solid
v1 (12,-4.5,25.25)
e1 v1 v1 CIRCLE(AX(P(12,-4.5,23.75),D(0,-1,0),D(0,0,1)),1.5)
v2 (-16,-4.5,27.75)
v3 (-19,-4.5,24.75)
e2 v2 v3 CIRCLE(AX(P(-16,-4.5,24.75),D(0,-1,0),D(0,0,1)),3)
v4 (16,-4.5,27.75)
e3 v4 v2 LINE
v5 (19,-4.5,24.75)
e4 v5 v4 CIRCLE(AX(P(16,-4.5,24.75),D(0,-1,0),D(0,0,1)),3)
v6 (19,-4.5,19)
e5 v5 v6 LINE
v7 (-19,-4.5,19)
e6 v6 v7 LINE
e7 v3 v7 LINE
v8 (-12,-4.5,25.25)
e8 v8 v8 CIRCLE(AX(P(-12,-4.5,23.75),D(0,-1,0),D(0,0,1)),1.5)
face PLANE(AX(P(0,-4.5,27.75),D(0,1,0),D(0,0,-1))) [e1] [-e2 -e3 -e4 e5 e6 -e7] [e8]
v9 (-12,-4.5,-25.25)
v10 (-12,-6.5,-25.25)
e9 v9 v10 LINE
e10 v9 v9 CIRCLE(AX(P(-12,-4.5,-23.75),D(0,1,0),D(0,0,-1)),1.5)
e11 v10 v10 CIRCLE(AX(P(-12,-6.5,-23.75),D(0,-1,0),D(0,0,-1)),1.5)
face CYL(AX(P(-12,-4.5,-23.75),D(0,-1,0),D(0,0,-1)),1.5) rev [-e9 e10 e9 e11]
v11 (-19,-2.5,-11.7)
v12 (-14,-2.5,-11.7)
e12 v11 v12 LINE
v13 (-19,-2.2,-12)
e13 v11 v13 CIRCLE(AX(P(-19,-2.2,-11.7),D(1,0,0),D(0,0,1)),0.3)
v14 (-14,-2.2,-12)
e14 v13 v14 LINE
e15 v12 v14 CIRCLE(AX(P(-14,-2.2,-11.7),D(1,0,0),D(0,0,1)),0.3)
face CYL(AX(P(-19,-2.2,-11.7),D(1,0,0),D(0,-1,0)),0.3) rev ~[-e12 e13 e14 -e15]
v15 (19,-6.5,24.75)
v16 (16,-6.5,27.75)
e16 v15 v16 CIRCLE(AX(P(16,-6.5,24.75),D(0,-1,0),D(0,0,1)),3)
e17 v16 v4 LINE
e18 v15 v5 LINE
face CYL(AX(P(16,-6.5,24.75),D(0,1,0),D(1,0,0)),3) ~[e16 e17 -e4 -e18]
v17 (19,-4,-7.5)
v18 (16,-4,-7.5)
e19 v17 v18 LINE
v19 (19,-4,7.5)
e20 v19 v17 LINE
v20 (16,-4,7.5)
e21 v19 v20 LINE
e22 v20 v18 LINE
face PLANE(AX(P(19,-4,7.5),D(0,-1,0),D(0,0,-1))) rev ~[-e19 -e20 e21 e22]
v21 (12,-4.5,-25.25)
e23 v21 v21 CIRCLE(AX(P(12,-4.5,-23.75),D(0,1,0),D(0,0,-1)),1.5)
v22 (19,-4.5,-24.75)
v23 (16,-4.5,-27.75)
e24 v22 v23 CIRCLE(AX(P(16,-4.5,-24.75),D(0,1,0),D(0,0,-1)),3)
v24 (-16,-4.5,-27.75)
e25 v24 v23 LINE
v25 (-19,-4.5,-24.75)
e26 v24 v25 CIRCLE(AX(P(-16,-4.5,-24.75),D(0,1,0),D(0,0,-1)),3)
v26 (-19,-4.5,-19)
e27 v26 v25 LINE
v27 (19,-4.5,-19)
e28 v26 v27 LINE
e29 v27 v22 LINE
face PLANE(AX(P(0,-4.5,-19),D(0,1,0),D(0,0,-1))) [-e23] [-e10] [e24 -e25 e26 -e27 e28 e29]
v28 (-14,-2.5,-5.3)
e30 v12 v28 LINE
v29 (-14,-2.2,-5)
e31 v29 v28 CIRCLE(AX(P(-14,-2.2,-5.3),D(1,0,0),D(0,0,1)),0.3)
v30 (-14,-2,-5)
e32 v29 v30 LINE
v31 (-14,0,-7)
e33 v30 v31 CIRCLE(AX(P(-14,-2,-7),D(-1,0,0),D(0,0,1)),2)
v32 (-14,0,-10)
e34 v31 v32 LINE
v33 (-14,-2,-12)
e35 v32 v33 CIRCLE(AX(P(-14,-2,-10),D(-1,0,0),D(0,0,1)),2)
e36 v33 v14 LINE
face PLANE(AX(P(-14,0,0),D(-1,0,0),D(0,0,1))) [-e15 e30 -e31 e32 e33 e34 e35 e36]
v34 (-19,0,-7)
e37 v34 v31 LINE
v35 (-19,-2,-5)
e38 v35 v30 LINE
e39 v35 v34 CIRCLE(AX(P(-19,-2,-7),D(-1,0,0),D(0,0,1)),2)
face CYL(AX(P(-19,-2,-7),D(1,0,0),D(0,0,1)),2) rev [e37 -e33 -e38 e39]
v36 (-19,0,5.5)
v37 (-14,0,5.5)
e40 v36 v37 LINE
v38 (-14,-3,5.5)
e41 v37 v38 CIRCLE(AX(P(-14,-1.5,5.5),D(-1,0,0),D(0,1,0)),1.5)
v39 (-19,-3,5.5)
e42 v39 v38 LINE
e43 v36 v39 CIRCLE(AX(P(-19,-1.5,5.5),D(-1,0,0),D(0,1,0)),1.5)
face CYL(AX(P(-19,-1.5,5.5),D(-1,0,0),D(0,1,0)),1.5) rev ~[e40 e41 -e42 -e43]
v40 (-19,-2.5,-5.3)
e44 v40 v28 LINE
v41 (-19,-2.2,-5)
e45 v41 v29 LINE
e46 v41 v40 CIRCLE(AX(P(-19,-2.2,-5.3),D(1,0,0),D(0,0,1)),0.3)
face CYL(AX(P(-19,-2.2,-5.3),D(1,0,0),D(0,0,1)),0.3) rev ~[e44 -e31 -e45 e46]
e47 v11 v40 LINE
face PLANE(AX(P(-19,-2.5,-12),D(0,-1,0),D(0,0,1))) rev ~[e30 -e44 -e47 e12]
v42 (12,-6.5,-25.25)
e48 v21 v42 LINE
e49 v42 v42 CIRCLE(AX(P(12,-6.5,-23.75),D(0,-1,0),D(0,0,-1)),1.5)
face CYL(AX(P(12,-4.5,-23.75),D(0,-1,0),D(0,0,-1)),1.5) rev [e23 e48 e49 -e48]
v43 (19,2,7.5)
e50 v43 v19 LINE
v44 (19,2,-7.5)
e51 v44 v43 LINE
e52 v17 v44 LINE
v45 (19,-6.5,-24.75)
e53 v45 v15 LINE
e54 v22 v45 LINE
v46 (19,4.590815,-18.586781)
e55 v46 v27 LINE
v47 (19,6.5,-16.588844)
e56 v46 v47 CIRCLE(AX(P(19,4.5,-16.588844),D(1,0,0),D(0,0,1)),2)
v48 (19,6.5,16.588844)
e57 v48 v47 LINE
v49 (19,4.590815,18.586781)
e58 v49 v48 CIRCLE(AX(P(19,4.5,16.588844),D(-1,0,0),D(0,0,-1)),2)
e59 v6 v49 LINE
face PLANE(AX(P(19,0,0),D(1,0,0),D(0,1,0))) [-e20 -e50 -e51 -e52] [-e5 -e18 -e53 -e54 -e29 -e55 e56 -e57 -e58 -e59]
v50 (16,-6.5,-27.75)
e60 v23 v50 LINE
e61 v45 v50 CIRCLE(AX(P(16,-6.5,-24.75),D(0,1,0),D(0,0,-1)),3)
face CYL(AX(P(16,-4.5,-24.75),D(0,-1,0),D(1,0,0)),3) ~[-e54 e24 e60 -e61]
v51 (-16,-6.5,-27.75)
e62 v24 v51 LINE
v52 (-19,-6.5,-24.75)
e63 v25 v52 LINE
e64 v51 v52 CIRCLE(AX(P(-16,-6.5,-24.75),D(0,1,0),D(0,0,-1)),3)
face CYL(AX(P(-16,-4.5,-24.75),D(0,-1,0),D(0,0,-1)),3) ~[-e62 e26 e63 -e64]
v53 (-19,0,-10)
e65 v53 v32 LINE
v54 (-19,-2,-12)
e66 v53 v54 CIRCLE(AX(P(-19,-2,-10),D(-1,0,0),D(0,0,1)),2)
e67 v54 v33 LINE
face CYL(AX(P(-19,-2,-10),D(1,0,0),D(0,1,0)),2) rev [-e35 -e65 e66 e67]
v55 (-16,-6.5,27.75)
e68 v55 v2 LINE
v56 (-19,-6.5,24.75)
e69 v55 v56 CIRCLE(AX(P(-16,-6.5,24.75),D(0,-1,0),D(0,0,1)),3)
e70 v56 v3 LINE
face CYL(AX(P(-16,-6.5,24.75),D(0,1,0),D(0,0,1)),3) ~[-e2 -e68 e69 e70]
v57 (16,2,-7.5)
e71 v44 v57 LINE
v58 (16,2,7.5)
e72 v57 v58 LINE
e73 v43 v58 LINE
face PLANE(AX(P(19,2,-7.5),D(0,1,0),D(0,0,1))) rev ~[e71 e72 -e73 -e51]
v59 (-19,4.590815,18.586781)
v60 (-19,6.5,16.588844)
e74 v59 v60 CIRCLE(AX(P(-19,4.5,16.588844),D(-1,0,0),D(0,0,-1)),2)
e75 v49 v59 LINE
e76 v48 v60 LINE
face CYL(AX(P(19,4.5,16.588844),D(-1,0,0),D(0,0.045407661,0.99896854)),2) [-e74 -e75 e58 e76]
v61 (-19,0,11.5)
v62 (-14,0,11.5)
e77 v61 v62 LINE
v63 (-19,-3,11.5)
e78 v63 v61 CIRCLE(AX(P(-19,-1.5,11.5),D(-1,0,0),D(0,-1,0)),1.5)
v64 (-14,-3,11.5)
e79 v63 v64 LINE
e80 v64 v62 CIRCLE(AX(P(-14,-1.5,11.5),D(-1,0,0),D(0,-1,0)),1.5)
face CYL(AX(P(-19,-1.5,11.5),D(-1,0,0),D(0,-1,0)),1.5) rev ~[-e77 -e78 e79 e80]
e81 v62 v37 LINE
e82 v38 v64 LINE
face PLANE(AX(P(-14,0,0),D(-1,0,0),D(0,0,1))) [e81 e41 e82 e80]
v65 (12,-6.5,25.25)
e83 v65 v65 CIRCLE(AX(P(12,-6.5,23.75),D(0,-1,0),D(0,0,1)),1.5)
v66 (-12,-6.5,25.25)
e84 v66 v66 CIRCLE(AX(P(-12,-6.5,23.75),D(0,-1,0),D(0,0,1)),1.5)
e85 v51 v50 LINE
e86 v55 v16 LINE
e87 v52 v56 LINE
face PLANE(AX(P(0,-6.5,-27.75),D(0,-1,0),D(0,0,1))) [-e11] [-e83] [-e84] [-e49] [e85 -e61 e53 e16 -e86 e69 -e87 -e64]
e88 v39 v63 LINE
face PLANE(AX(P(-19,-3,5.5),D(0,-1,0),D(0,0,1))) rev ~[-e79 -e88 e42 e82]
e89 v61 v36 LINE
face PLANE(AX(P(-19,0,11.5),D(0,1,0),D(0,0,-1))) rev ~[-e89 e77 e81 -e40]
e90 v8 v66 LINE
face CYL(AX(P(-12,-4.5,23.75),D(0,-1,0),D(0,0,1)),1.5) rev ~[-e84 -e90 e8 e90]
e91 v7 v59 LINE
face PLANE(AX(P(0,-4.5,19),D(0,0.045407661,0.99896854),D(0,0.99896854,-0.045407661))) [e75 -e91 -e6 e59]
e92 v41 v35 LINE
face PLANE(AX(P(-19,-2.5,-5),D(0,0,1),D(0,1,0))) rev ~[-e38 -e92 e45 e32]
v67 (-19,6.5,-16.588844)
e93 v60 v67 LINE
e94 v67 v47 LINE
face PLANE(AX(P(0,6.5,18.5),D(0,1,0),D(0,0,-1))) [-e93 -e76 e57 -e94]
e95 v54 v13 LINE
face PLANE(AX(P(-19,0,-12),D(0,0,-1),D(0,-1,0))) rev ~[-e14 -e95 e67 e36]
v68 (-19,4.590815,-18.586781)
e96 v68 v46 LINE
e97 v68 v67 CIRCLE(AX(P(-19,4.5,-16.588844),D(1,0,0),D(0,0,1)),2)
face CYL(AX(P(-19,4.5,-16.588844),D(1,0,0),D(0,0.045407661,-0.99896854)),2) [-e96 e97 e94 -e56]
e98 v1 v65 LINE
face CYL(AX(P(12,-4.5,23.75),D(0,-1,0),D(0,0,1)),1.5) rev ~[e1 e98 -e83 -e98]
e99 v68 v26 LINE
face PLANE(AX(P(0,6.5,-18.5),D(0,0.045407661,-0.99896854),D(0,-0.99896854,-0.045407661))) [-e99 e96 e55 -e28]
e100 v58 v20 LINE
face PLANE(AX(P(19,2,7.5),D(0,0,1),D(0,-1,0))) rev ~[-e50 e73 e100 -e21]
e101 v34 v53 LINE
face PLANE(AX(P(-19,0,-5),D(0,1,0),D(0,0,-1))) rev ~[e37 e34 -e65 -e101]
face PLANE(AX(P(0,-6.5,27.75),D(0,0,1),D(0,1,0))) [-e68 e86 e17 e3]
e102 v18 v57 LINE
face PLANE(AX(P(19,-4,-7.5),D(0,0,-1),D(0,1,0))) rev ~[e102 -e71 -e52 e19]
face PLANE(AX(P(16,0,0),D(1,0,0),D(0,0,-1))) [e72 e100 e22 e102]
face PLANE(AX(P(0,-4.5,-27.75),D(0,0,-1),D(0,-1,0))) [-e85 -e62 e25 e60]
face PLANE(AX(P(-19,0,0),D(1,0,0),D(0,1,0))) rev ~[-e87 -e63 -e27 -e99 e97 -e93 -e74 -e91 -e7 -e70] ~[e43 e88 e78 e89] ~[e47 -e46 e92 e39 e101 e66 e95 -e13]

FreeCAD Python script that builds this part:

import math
import FreeCAD as App
import Part
import Sketcher

V = App.Vector
Q = App.Units.Quantity


def edges_at(feature, points):
    """Names of the edges that pass closest to the given points."""
    edges = feature.Shape.Edges
    near = lambda p: min(range(len(edges)), key=lambda i: edges[i].distToShape(Part.Vertex(*p))[0])
    return sorted({f"Edge{near(p) + 1}" for p in points})


def add_polygon(sketch, points):
    """Adds a closed chain of lines whose ends are joined by coincident constraints."""
    first, n = sketch.GeometryCount, len(points)
    for a, b in zip(points, points[1:] + points[:1]):
        sketch.addGeometry(Part.LineSegment(App.Vector(*a, 0), App.Vector(*b, 0)), False)
    for i in range(n):
        sketch.addConstraint(Sketcher.Constraint("Coincident", first + i, 2, first + (i + 1) % n, 1))

doc = App.newDocument("Part")
params = doc.addObject("Spreadsheet::Sheet", "Params")
for row, (alias, value) in enumerate([
    ("sketch1_height", "55.5 mm"),
    ("pad1_length", "38 mm"),
    ("fillet_radius", "2 mm"),
    ("sketch2_diameter", "3 mm"),
    ("hole_diameter", "3 mm"),
    ("fillet2_radius", "3 mm"),
    ("sketch3_width", "6 mm"),
    ("sketch3_height", "15 mm"),
    ("pocket1_length", "3 mm"),
    ("sketch4_radius", "1.5 mm"),
    ("sketch4_height", "7 mm"),
    ("sketch4_width", "2.5 mm"),
    ("sketch4_height2", "6 mm"),
    ("pocket2_length", "5 mm"),
    ("fillet3_radius", "0.3 mm"),
    ("fillet4_radius", "2 mm"),
], start=1):
    params.set(f"A{row}", alias)
    params.set(f"B{row}", "=" + value)
    params.setAlias(f"B{row}", alias)

body = doc.addObject("PartDesign::Body", "Body")

# Sketch on YZ plane
sketch1 = body.newObject("Sketcher::SketchObject", "Sketch")
sketch1.AttachmentSupport = (doc.getObject("YZ_Plane"), [""])
sketch1.MapMode = "FlatFace"
add_polygon(sketch1, [(-4.5, 27.75), (-6.5, 27.75), (-6.5, -27.75), (-4.5, -27.75), (-4.5, -19), (6.5, -18.5), (6.5, 18.5), (-4.5, 19)])  # lines 0-7
sketch1.addConstraint(Sketcher.Constraint("Horizontal", 0))
sketch1.addConstraint(Sketcher.Constraint("Vertical", 1))
sketch1.addConstraint(Sketcher.Constraint("Horizontal", 2))
sketch1.addConstraint(Sketcher.Constraint("Vertical", 3))
sketch1.addConstraint(Sketcher.Constraint("Vertical", 5))
sketch1.addConstraint(Sketcher.Constraint("Vertical", 7))
sketch1.addConstraint(Sketcher.Constraint("Symmetric", 3, 2, 6, 2, -1))
sketch1.addConstraint(Sketcher.Constraint("Equal", 3, 7))
sketch1.addConstraint(Sketcher.Constraint("Equal", 4, 6))
sketch1.addConstraint(Sketcher.Constraint("DistanceY", 1, 2, 1, 1, Q("55.5 mm")))
sketch1.addConstraint(Sketcher.Constraint("DistanceX", 3, 2, 4, 2, Q("11 mm")))
sketch1.addConstraint(Sketcher.Constraint("DistanceX", 1, 2, 4, 2, Q("13 mm")))
sketch1.addConstraint(Sketcher.Constraint("DistanceY", 3, 2, 6, 2, Q("38 mm")))
sketch1.addConstraint(Sketcher.Constraint("DistanceY", 3, 2, 4, 2, Q("0.5 mm")))
sketch1.addConstraint(Sketcher.Constraint("DistanceX", 0, 2, -1, 1, Q("6.5 mm")))
sketch1.setExpression("Constraints[17]", "Params.sketch1_height")
pad1 = body.newObject("PartDesign::Pad", "Pad")
pad1.Profile = sketch1
pad1.setExpression("Length", "Params.pad1_length")
pad1.Midplane = True
doc.recompute()

fillet = body.newObject("PartDesign::Fillet", "Fillet")
fillet.Base = (pad1, edges_at(pad1, [(0, 6.5, 18.5), (0, 6.5, -18.5)]))
fillet.setExpression("Radius", "Params.fillet_radius")

# Sketch on XZ plane
sketch2 = body.newObject("Sketcher::SketchObject", "Sketch001")
sketch2.AttachmentSupport = (doc.getObject("XZ_Plane"), [""])
sketch2.MapMode = "FlatFace"
sketch2.AttachmentOffset = App.Placement(V(0, 0, 4.5), App.Rotation())
sketch2.addGeometry(Part.Circle(V(-12, 23.75, 0), V(0, 0, 1), 1.5), False)
sketch2.addGeometry(Part.Circle(V(12, 23.75, 0), V(0, 0, 1), 1.5), False)
sketch2.addConstraint(Sketcher.Constraint("Equal", 0, 1))
sketch2.addConstraint(Sketcher.Constraint("Symmetric", 0, 3, 1, 3, -2))
sketch2.addConstraint(Sketcher.Constraint("Diameter", 0, Q("3 mm")))
sketch2.addConstraint(Sketcher.Constraint("DistanceX", 0, 3, -1, 1, Q("12 mm")))
sketch2.addConstraint(Sketcher.Constraint("DistanceY", -1, 1, 0, 3, Q("23.75 mm")))
sketch2.setExpression("Constraints[2]", "Params.sketch2_diameter")
doc.recompute()
hole = body.newObject("PartDesign::Hole", "Hole")
hole.Profile = sketch2
hole.ThreadType = "None"
hole.setExpression("Diameter", "Params.hole_diameter")
hole.DepthType = "ThroughAll"
hole.Reversed = True
doc.recompute()

fillet2 = body.newObject("PartDesign::Fillet", "Fillet001")
fillet2.Base = (hole, edges_at(hole, [(19, -5.5, 27.75), (-19, -5.5, 27.75)]))
fillet2.setExpression("Radius", "Params.fillet2_radius")
doc.recompute()

mirrored = body.newObject("PartDesign::Mirrored", "Mirrored")
mirrored.Originals = [hole, fillet2]
mirrored.MirrorPlane = (doc.getObject("XY_Plane"), [""])
body.Tip = mirrored

# Sketch on YZ plane
sketch3 = body.newObject("Sketcher::SketchObject", "Sketch002")
sketch3.AttachmentSupport = (doc.getObject("YZ_Plane"), [""])
sketch3.MapMode = "FlatFace"
sketch3.AttachmentOffset = App.Placement(V(0, 0, 19), App.Rotation())
add_polygon(sketch3, [(2, 7.5), (-4, 7.5), (-4, -7.5), (2, -7.5)])  # lines 0-3
sketch3.addConstraint(Sketcher.Constraint("Horizontal", 0))
sketch3.addConstraint(Sketcher.Constraint("Vertical", 1))
sketch3.addConstraint(Sketcher.Constraint("Horizontal", 2))
sketch3.addConstraint(Sketcher.Constraint("Vertical", 3))
sketch3.addConstraint(Sketcher.Constraint("DistanceX", 0, 2, 0, 1, Q("6 mm")))
sketch3.addConstraint(Sketcher.Constraint("DistanceY", 1, 2, 1, 1, Q("15 mm")))
sketch3.addConstraint(Sketcher.Constraint("DistanceX", 0, 2, -1, 1, Q("4 mm")))
sketch3.addConstraint(Sketcher.Constraint("DistanceY", -1, 1, 0, 2, Q("7.5 mm")))
sketch3.setExpression("Constraints[8]", "Params.sketch3_width")
sketch3.setExpression("Constraints[9]", "Params.sketch3_height")
pocket1 = body.newObject("PartDesign::Pocket", "Pocket")
pocket1.Profile = sketch3
pocket1.setExpression("Length", "Params.pocket1_length")

# Sketch on YZ plane
sketch4 = body.newObject("Sketcher::SketchObject", "Sketch003")
sketch4.AttachmentSupport = (doc.getObject("YZ_Plane"), [""])
sketch4.MapMode = "FlatFace"
sketch4.AttachmentOffset = App.Placement(V(0, 0, -19), App.Rotation())
sketch4.addGeometry(Part.ArcOfCircle(Part.Circle(V(-1.5, 5.5, 0), V(0, 0, 1), 1.5), math.radians(180), math.radians(360)), False)  # 0
sketch4.addGeometry(Part.LineSegment(V(-3, 5.5, 0), V(-3, 11.5, 0)), False)  # 1
sketch4.addGeometry(Part.ArcOfCircle(Part.Circle(V(-1.5, 11.5, 0), V(0, 0, 1), 1.5), math.radians(0), math.radians(180)), False)  # 2
sketch4.addGeometry(Part.LineSegment(V(0, 11.5, 0), V(0, 5.5, 0)), False)  # 3
add_polygon(sketch4, [(0, -12), (-2.5, -12), (-2.5, -5), (0, -5)])  # lines 4-7
sketch4.addConstraint(Sketcher.Constraint("Tangent", 0, 1, 1, 1))
sketch4.addConstraint(Sketcher.Constraint("Tangent", 1, 2, 2, 2))
sketch4.addConstraint(Sketcher.Constraint("Tangent", 2, 1, 3, 1))
sketch4.addConstraint(Sketcher.Constraint("Tangent", 3, 2, 0, 2))
sketch4.addConstraint(Sketcher.Constraint("Vertical", 1))
sketch4.addConstraint(Sketcher.Constraint("Vertical", 3))
sketch4.addConstraint(Sketcher.Constraint("Horizontal", 4))
sketch4.addConstraint(Sketcher.Constraint("Vertical", 5))
sketch4.addConstraint(Sketcher.Constraint("Horizontal", 6))
sketch4.addConstraint(Sketcher.Constraint("Vertical", 7))
sketch4.addConstraint(Sketcher.Constraint("PointOnObject", 2, 1, -2))
sketch4.addConstraint(Sketcher.Constraint("PointOnObject", 6, 2, -2))
sketch4.addConstraint(Sketcher.Constraint("Radius", 0, Q("1.5 mm")))
sketch4.addConstraint(Sketcher.Constraint("DistanceY", 5, 1, 5, 2, Q("7 mm")))
sketch4.addConstraint(Sketcher.Constraint("DistanceX", 4, 2, 4, 1, Q("2.5 mm")))
sketch4.addConstraint(Sketcher.Constraint("DistanceY", 1, 1, 1, 2, Q("6 mm")))
sketch4.addConstraint(Sketcher.Constraint("DistanceY", 4, 2, -1, 1, Q("12 mm")))
sketch4.addConstraint(Sketcher.Constraint("DistanceY", -1, 1, 0, 3, Q("5.5 mm")))
sketch4.setExpression("Constraints[16]", "Params.sketch4_radius")
sketch4.setExpression("Constraints[17]", "Params.sketch4_height")
sketch4.setExpression("Constraints[18]", "Params.sketch4_width")
sketch4.setExpression("Constraints[19]", "Params.sketch4_height2")
pocket2 = body.newObject("PartDesign::Pocket", "Pocket001")
pocket2.Profile = sketch4
pocket2.setExpression("Length", "Params.pocket2_length")
pocket2.Reversed = True
doc.recompute()

fillet3 = body.newObject("PartDesign::Fillet", "Fillet002")
fillet3.Base = (pocket2, edges_at(pocket2, [(-16.5, -2.5, -12), (-16.5, -2.5, -5)]))
fillet3.setExpression("Radius", "Params.fillet3_radius")
doc.recompute()

fillet4 = body.newObject("PartDesign::Fillet", "Fillet003")
fillet4.Base = (fillet3, edges_at(fillet3, [(-16.5, 0, -12), (-16.5, 0, -5)]))
fillet4.setExpression("Radius", "Params.fillet4_radius")

doc.recompute()
